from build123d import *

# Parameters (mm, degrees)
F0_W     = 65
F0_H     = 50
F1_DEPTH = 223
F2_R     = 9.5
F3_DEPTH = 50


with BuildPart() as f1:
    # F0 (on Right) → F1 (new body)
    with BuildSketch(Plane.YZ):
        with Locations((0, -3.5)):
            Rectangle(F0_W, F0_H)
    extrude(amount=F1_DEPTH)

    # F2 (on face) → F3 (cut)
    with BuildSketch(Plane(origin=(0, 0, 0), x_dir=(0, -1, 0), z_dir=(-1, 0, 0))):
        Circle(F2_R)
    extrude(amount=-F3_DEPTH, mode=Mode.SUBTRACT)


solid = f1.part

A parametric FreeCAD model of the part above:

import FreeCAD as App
import Part
import Sketcher
Q = App.Units.Quantity


def add_polygon(sketch, points):
    """Adds a closed chain of lines whose ends are joined by coincident constraints."""
    first, n = sketch.GeometryCount, len(points)
    for a, b in zip(points, points[1:] + points[:1]):
        sketch.addGeometry(Part.LineSegment(App.Vector(*a, 0), App.Vector(*b, 0)), False)
    for i in range(n):
        sketch.addConstraint(Sketcher.Constraint("Coincident", first + i, 2, first + (i + 1) % n, 1))

doc = App.newDocument("Part")
body = doc.addObject("PartDesign::Body", "Body")

# Sketch on YZ plane
sketch1 = body.newObject("Sketcher::SketchObject", "Sketch")
sketch1.AttachmentSupport = (doc.getObject("YZ_Plane"), [""])
sketch1.MapMode = "FlatFace"
add_polygon(sketch1, [(-32.5, 21.5), (-32.5, -28.5), (32.5, -28.5), (32.5, 21.5)])  # lines 0-3
sketch1.addConstraint(Sketcher.Constraint("Vertical", 0))
sketch1.addConstraint(Sketcher.Constraint("Horizontal", 1))
sketch1.addConstraint(Sketcher.Constraint("Vertical", 2))
sketch1.addConstraint(Sketcher.Constraint("Horizontal", 3))
sketch1.addConstraint(Sketcher.Constraint("DistanceX", 1, 1, 1, 2, Q("65 mm")))
sketch1.addConstraint(Sketcher.Constraint("DistanceY", 0, 2, 0, 1, Q("50 mm")))
sketch1.addConstraint(Sketcher.Constraint("DistanceX", 0, 2, -1, 1, Q("32.5 mm")))
sketch1.addConstraint(Sketcher.Constraint("DistanceY", 0, 2, -1, 1, Q("28.5 mm")))
pad1 = body.newObject("PartDesign::Pad", "Pad")
pad1.Profile = sketch1
pad1.Length = 223

# Sketch on YZ plane
sketch2 = body.newObject("Sketcher::SketchObject", "Sketch001")
sketch2.AttachmentSupport = (doc.getObject("YZ_Plane"), [""])
sketch2.MapMode = "FlatFace"
sketch2.addGeometry(Part.Circle(App.Vector(0, 0, 0), App.Vector(0, 0, 1), 9.5), False)
sketch2.addConstraint(Sketcher.Constraint("Coincident", 0, 3, -1, 1))
sketch2.addConstraint(Sketcher.Constraint("Diameter", 0, Q("19 mm")))
pocket1 = body.newObject("PartDesign::Pocket", "Pocket")
pocket1.Profile = sketch2
pocket1.Length = 50
pocket1.Reversed = True

doc.recompute()
